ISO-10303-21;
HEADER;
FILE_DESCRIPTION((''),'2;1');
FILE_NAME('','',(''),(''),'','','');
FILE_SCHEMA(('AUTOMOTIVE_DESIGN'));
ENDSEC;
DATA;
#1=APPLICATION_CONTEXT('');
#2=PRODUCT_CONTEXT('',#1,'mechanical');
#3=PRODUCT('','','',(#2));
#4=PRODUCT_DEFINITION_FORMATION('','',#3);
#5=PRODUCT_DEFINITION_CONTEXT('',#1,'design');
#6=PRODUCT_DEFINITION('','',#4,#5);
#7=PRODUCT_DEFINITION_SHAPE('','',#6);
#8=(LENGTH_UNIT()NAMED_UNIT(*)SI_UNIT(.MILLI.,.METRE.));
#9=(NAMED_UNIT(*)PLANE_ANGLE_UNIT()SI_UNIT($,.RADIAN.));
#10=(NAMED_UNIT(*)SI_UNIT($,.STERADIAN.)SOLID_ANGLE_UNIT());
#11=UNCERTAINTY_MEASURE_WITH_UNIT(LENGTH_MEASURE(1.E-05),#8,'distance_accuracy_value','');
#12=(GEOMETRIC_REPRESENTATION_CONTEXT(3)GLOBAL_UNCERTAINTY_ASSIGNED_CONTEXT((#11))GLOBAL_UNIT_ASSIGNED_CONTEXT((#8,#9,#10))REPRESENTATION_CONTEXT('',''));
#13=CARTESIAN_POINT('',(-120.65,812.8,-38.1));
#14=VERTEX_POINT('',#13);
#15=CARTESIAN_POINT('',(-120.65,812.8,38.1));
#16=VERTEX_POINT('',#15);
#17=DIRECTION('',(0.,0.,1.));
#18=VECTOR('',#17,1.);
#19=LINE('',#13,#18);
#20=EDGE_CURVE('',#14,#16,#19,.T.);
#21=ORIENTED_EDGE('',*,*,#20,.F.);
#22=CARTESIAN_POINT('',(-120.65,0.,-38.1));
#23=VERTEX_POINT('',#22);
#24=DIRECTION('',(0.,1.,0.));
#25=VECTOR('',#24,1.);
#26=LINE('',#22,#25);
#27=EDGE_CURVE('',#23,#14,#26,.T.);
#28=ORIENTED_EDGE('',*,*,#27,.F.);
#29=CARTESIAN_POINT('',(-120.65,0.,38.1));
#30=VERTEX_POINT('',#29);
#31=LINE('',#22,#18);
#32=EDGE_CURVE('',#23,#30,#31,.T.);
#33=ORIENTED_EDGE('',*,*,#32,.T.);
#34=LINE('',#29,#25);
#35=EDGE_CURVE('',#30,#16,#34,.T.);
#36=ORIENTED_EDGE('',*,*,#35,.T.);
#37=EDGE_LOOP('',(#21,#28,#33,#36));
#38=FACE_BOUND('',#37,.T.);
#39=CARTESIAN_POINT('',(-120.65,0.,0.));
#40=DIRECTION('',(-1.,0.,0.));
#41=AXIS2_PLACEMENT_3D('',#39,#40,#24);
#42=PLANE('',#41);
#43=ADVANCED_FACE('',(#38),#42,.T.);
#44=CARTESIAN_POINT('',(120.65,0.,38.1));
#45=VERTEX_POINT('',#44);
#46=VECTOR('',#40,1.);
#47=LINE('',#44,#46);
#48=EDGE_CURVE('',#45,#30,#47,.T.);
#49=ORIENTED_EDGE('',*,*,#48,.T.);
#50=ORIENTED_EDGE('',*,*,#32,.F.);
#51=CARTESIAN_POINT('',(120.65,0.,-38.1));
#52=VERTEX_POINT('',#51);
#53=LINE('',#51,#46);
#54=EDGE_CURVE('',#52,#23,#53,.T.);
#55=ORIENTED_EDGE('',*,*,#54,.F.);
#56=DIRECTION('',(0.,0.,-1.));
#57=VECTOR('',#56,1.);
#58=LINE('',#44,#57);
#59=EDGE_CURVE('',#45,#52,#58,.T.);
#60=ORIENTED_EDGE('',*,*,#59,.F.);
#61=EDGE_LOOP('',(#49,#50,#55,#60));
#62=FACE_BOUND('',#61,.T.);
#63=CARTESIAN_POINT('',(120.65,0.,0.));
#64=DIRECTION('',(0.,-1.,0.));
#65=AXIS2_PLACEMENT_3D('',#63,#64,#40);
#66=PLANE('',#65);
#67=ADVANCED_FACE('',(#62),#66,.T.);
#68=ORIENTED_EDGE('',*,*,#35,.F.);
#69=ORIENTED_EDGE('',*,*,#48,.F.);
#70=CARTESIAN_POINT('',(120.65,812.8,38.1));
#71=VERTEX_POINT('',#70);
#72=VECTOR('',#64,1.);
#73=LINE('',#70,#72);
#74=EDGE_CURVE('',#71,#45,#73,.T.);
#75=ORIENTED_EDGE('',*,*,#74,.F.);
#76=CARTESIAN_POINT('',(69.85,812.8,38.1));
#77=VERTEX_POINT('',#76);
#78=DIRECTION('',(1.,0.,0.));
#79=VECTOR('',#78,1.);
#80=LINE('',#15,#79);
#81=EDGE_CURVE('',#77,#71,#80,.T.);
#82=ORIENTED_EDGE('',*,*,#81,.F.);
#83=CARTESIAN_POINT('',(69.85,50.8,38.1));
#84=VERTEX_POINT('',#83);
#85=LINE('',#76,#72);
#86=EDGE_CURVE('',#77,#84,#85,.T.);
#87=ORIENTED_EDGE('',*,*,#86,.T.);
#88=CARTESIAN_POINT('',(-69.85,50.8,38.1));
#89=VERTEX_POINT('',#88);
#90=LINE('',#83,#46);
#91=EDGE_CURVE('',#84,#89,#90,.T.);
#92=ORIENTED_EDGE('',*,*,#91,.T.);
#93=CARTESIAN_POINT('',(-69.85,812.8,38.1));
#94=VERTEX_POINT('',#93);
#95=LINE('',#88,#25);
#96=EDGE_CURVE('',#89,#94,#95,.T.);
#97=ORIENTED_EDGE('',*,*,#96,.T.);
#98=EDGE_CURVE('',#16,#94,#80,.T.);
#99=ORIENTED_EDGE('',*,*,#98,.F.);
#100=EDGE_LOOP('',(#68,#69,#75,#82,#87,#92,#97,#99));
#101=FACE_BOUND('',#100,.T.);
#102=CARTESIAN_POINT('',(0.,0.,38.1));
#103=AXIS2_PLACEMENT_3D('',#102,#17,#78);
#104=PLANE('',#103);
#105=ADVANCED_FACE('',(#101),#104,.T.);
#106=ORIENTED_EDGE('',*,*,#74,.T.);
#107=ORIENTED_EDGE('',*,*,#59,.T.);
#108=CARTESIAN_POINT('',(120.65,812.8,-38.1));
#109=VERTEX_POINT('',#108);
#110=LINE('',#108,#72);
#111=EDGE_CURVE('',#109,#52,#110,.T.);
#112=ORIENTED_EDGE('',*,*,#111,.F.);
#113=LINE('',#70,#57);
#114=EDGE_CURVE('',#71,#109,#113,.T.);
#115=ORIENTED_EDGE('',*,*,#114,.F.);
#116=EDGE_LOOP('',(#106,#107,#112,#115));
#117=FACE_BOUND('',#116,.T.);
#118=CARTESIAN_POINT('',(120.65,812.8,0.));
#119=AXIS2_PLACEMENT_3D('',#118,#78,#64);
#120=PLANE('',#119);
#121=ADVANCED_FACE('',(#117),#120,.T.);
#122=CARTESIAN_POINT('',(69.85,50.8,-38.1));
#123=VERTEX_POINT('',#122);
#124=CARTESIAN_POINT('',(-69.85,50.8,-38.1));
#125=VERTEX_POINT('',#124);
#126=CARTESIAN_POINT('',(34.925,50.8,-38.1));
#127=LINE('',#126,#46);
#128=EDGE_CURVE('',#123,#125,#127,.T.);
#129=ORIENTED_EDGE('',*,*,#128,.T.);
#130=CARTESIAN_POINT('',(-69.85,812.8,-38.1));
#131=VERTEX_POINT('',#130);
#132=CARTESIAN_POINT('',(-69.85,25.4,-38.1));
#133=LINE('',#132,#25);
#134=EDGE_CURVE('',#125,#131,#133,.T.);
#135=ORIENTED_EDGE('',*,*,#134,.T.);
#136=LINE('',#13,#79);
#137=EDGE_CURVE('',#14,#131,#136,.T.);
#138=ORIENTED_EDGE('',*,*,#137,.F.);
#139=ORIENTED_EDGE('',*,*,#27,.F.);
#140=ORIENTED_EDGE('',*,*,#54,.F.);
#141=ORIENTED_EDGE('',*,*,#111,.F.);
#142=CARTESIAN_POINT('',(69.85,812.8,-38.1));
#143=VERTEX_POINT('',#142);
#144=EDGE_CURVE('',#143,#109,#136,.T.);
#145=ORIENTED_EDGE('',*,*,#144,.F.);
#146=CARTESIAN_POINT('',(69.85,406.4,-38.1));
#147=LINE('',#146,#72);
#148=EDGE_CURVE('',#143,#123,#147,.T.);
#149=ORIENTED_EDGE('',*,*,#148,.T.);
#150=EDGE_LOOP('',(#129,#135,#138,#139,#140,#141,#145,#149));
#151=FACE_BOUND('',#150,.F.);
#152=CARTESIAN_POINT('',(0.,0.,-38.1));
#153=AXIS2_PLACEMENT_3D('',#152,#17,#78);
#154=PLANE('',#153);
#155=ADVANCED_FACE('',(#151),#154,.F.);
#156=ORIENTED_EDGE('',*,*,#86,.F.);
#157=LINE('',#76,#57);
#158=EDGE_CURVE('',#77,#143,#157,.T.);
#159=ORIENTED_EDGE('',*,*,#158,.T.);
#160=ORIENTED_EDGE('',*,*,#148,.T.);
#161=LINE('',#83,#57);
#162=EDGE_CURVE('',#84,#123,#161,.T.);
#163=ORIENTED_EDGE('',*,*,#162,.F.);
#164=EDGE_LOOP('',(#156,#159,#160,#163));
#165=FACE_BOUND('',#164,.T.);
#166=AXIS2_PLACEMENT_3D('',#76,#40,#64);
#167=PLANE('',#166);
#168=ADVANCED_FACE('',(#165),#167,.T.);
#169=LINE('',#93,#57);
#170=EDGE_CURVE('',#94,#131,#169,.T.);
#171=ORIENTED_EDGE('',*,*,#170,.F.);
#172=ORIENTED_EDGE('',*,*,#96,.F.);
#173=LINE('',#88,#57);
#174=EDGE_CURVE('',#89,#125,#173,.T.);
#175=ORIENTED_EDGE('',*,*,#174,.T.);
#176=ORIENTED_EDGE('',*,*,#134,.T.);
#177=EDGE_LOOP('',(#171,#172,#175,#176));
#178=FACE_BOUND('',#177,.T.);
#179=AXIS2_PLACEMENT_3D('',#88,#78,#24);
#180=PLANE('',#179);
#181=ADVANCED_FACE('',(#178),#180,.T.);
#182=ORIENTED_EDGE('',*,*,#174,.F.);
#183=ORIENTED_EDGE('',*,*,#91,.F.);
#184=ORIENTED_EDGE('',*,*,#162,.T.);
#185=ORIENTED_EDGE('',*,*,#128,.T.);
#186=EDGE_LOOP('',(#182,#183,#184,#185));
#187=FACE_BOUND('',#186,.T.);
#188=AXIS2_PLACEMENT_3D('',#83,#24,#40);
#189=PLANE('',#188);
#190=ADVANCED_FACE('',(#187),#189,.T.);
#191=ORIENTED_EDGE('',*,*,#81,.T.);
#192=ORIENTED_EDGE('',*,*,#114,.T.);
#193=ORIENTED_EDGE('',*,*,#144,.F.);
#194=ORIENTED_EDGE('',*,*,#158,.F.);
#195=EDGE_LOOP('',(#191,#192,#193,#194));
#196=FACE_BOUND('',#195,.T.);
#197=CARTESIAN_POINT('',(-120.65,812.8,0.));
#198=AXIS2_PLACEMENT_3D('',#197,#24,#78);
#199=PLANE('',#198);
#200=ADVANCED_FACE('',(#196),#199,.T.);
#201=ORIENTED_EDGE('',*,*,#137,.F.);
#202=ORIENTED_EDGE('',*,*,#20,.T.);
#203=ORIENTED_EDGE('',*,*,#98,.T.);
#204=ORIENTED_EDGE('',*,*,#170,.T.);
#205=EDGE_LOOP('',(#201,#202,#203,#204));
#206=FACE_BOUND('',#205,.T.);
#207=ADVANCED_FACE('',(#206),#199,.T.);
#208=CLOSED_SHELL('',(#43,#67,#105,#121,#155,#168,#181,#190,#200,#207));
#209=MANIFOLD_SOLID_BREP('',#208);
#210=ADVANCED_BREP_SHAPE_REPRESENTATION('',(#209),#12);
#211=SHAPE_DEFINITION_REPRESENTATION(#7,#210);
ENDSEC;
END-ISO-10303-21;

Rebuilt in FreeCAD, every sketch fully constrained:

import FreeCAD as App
import Part
import Sketcher

V = App.Vector
Q = App.Units.Quantity


def add_polygon(sketch, points):
    """Adds a closed chain of lines whose ends are joined by coincident constraints."""
    first, n = sketch.GeometryCount, len(points)
    for a, b in zip(points, points[1:] + points[:1]):
        sketch.addGeometry(Part.LineSegment(App.Vector(*a, 0), App.Vector(*b, 0)), False)
    for i in range(n):
        sketch.addConstraint(Sketcher.Constraint("Coincident", first + i, 2, first + (i + 1) % n, 1))

doc = App.newDocument("Part")
body = doc.addObject("PartDesign::Body", "Body")

# Sketch on XY plane
sketch1 = body.newObject("Sketcher::SketchObject", "Sketch")
sketch1.AttachmentSupport = (doc.getObject("XY_Plane"), [""])
sketch1.MapMode = "FlatFace"
add_polygon(sketch1, [(121, 813), (-121, 813), (-121, 0), (121, 0)])  # lines 0-3
sketch1.addConstraint([
    Sketcher.Constraint("Horizontal", 0),
    Sketcher.Constraint("Vertical", 1),
    Sketcher.Constraint("Horizontal", 2),
    Sketcher.Constraint("Vertical", 3),
    Sketcher.Constraint("Symmetric", 1, 2, 2, 2, -1, 1),
    Sketcher.Constraint("DistanceY", 1, 2, 1, 1, Q("32 in")),
    Sketcher.Constraint("DistanceX", 0, 2, 0, 1, Q("9.5 in")),
])
pad1 = body.newObject("PartDesign::Pad", "Pad")
pad1.Profile = sketch1
pad1.Length = Q("3 in")
pad1.Midplane = True

# Sketch on XY plane
sketch2 = body.newObject("Sketcher::SketchObject", "Sketch001")
sketch2.AttachmentSupport = (doc.getObject("XY_Plane"), [""])
sketch2.MapMode = "FlatFace"
sketch2.AttachmentOffset = App.Placement(V(0, 0, 1.5 * 25.4), App.Rotation())
add_polygon(sketch2, [(70, 813), (-70, 813), (-70, 51), (70, 51)])  # lines 0-3
sketch2.addConstraint([
    Sketcher.Constraint("Horizontal", 0),
    Sketcher.Constraint("Vertical", 1),
    Sketcher.Constraint("Horizontal", 2),
    Sketcher.Constraint("Vertical", 3),
    Sketcher.Constraint("DistanceY", -1, 1, 1, 2, Q("2 in")),
    Sketcher.Constraint("DistanceY", 1, 2, 1, 1, Q("30 in")),
    Sketcher.Constraint("DistanceX", 0, 2, 0, 1, Q("5.5 in")),
    Sketcher.Constraint("DistanceX", 0, 2, -1, 1, Q("2.75 in")),
])
pocket1 = body.newObject("PartDesign::Pocket", "Pocket")
pocket1.Profile = sketch2
pocket1.Type = "ThroughAll"

doc.recompute()
